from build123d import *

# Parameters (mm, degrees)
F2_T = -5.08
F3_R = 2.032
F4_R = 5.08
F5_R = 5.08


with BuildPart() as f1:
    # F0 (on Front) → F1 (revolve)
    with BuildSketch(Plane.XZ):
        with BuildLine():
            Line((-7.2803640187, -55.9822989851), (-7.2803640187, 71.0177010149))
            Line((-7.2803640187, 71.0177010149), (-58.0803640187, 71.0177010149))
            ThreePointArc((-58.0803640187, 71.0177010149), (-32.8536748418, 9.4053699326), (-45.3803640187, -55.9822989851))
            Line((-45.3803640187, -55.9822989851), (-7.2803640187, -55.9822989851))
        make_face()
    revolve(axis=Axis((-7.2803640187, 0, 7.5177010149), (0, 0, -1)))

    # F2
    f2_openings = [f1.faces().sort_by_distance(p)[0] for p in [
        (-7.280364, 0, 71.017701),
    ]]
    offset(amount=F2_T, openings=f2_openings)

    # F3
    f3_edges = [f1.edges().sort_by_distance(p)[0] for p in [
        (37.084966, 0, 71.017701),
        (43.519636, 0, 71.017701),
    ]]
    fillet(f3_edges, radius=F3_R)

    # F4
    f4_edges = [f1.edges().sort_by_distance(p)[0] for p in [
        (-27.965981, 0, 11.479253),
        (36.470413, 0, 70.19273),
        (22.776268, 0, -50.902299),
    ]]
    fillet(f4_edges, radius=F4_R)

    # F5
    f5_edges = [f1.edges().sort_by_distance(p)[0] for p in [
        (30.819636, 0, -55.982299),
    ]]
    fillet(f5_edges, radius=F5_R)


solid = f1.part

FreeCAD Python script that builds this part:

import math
import FreeCAD as App
import Part
import Sketcher
from FreeCAD import Vector
Q = App.Units.Quantity


def edges_at(feature, points):
    """Names of the edges that pass closest to the given points."""
    edges = feature.Shape.Edges
    near = lambda p: min(range(len(edges)), key=lambda i: edges[i].distToShape(Part.Vertex(*p))[0])
    return sorted({f"Edge{near(p) + 1}" for p in points})


def faces_at(feature, points):
    """Names of the faces that lie closest to the given points."""
    faces = feature.Shape.Faces
    near = lambda p: min(range(len(faces)), key=lambda i: faces[i].distToShape(Part.Vertex(*p))[0])
    return sorted({f"Face{near(p) + 1}" for p in points})

doc = App.newDocument("Part")
params = doc.addObject("Spreadsheet::Sheet", "Params")
for row, (alias, value) in enumerate([
    ("sketch1_width", "2 in"),
    ("sketch1_height", "5 in"),
    ("sketch1_width2", "1.5 in"),
    ("revolution_angle", "360 deg"),
    ("thickness_wall", "0.2 in"),
    ("fillet_radius", "0.08 in"),
    ("fillet2_radius", "0.2 in"),
    ("fillet3_radius", "0.2 in"),
], start=1):
    params.set(f"A{row}", alias)
    params.set(f"B{row}", "=" + value)
    params.setAlias(f"B{row}", alias)

body = doc.addObject("PartDesign::Body", "Body")

# Sketch on XZ plane
sketch1 = body.newObject("Sketcher::SketchObject", "Sketch")
sketch1.AttachmentSupport = (doc.getObject("XZ_Plane"), [""])
sketch1.MapMode = "FlatFace"
sketch1.addGeometry([
    Part.LineSegment(Vector(-7, -56, 0), Vector(-7, 71, 0)),
    Part.LineSegment(Vector(-7, 71, 0), Vector(-58, 71, 0)),
    Part.ArcOfCircle(Part.Circle(Vector(-149, -2, 0), Vector(0, 0, 1), 117), math.radians(-27), math.radians(39)),
    Part.LineSegment(Vector(-45, -56, 0), Vector(-7, -56, 0)),
], False)
sketch1.addGeometry(Part.LineSegment(Vector(-7, 71, 0), Vector(-7, -56, 0)), True)  # axis
sketch1.addConstraint([
    Sketcher.Constraint("Coincident", 0, 2, 1, 1),
    Sketcher.Constraint("Coincident", 1, 2, 2, 2),
    Sketcher.Constraint("Coincident", 2, 1, 3, 1),
    Sketcher.Constraint("Coincident", 3, 2, 0, 1),
    Sketcher.Constraint("Vertical", 0),
    Sketcher.Constraint("Horizontal", 1),
    Sketcher.Constraint("Horizontal", 3),
    Sketcher.Constraint("Vertical", 4),
    Sketcher.Constraint("Coincident", 4, 1, 0, 2),
    Sketcher.Constraint("Horizontal", 2, 1, 4, 2),
    Sketcher.Constraint("DistanceX", 1, 2, 1, 1, Q("2 in")),
    Sketcher.Constraint("DistanceY", 0, 1, 0, 2, Q("5 in")),
    Sketcher.Constraint("DistanceX", 3, 1, 3, 2, Q("1.5 in")),
    Sketcher.Constraint("Radius", 2, Q("116.823127 mm")),
    Sketcher.Constraint("DistanceY", -1, 1, 0, 2, Q("71.017701 mm")),
    Sketcher.Constraint("DistanceX", 2, 3, -1, 1, Q("149.097031 mm")),
])
sketch1.setExpression("Constraints[10]", "Params.sketch1_width")
sketch1.setExpression("Constraints[11]", "Params.sketch1_height")
sketch1.setExpression("Constraints[12]", "Params.sketch1_width2")
revolution = body.newObject("PartDesign::Revolution", "Revolution")
revolution.Profile = sketch1
revolution.ReferenceAxis = (sketch1, ["Axis0"])
revolution.setExpression("Angle", "Params.revolution_angle")
doc.recompute()

thickness = body.newObject("PartDesign::Thickness", "Thickness")
thickness.Base = (revolution, faces_at(revolution, [(-7.28, 0, 71.018)]))
thickness.setExpression("Value", "Params.thickness_wall")
thickness.Reversed = True
thickness.Join = "Arc"
doc.recompute()

fillet = body.newObject("PartDesign::Fillet", "Fillet")
fillet.Base = (thickness, edges_at(thickness, [(37.085, 0, 71.018), (43.52, 0, 71.018)]))
fillet.setExpression("Radius", "Params.fillet_radius")
doc.recompute()

fillet2 = body.newObject("PartDesign::Fillet", "Fillet001")
fillet2.Base = (fillet, edges_at(fillet, [(-27.966, 0, 11.479), (36.47, 0, 70.193), (22.776, 0, -50.902)]))
fillet2.setExpression("Radius", "Params.fillet2_radius")
doc.recompute()

fillet3 = body.newObject("PartDesign::Fillet", "Fillet002")
fillet3.Base = (fillet2, edges_at(fillet2, [(30.82, 0, -55.982)]))
fillet3.setExpression("Radius", "Params.fillet3_radius")

doc.recompute()
